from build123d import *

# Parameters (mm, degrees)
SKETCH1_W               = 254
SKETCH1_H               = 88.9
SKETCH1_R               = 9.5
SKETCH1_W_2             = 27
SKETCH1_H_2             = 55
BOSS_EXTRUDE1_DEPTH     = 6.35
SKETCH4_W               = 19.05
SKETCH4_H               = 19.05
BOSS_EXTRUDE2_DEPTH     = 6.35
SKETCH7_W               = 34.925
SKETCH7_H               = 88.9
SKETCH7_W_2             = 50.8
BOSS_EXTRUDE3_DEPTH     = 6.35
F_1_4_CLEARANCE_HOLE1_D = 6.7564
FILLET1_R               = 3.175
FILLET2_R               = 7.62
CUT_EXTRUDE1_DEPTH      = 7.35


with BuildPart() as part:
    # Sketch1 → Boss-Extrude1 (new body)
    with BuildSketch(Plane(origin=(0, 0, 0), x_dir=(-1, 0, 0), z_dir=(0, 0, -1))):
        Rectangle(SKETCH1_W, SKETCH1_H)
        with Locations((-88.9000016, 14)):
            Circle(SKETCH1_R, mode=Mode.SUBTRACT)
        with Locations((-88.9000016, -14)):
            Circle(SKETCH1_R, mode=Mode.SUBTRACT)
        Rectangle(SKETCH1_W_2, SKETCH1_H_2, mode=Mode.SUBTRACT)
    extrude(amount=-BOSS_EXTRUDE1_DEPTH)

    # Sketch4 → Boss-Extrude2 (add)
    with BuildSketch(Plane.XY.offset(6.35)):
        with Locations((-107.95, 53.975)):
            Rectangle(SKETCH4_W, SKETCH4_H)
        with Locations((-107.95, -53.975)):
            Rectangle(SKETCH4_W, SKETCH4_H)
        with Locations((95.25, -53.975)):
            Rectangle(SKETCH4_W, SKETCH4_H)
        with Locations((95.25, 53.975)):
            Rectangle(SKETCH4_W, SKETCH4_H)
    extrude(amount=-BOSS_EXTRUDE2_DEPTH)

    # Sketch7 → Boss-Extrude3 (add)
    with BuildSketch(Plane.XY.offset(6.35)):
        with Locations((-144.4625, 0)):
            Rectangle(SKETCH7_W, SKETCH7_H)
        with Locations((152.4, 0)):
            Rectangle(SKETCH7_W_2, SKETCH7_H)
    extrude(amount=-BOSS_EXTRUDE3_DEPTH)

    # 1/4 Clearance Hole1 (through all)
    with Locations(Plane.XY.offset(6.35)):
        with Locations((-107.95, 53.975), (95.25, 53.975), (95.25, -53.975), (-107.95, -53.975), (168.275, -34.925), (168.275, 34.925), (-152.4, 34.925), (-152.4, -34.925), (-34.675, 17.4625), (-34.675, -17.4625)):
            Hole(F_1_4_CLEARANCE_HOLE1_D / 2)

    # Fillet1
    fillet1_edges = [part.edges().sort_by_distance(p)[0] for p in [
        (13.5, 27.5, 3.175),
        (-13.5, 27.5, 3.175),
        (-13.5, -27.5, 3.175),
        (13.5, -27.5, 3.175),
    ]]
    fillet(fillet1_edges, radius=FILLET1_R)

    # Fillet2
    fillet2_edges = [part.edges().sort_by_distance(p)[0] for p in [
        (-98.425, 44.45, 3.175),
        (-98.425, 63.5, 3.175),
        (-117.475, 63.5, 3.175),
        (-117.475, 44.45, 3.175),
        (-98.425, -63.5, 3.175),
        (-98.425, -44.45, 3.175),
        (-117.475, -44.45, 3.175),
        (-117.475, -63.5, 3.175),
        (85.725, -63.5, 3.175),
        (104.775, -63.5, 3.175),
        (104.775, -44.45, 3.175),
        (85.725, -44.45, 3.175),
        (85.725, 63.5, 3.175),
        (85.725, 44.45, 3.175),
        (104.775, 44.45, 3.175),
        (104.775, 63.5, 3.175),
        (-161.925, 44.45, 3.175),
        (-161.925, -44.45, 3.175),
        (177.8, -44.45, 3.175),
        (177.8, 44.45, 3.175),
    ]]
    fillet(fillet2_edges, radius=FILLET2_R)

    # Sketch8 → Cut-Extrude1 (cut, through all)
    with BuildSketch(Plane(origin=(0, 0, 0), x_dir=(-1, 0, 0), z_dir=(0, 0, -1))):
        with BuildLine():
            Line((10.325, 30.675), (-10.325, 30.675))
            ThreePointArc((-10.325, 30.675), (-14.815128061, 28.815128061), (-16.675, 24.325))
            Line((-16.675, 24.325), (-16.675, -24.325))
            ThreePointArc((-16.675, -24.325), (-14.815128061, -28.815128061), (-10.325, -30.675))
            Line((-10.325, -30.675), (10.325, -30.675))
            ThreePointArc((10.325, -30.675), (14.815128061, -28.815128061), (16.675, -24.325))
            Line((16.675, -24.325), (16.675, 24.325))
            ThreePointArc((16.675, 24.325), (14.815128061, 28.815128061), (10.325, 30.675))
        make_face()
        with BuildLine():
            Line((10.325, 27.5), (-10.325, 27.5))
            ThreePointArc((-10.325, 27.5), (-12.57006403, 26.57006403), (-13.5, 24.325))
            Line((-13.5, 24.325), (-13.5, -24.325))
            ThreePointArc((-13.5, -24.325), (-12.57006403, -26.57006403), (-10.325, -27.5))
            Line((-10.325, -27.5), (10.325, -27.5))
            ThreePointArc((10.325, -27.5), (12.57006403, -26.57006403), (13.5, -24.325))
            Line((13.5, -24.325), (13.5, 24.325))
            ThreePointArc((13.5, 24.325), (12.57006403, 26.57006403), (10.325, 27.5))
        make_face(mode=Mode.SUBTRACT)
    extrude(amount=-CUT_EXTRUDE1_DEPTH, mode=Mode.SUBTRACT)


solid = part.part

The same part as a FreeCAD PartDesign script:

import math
import FreeCAD as App
import Part
import Sketcher
Q = App.Units.Quantity


def edges_at(feature, points):
    """Names of the edges that pass closest to the given points."""
    edges = feature.Shape.Edges
    near = lambda p: min(range(len(edges)), key=lambda i: edges[i].distToShape(Part.Vertex(*p))[0])
    return sorted({f"Edge{near(p) + 1}" for p in points})


def add_polygon(sketch, points):
    """Adds a closed chain of lines whose ends are joined by coincident constraints."""
    first, n = sketch.GeometryCount, len(points)
    for a, b in zip(points, points[1:] + points[:1]):
        sketch.addGeometry(Part.LineSegment(App.Vector(*a, 0), App.Vector(*b, 0)), False)
    for i in range(n):
        sketch.addConstraint(Sketcher.Constraint("Coincident", first + i, 2, first + (i + 1) % n, 1))

doc = App.newDocument("Part")
body = doc.addObject("PartDesign::Body", "Body")

sketch1 = body.newObject("Sketcher::SketchObject", "Sketch")
sketch1.AttachmentSupport = (doc.getObject("XY_Plane"), [""])
sketch1.MapMode = "FlatFace"
add_polygon(sketch1, [(127, 44), (127, -44), (-127, -44), (-127, 44)])
sketch1.addGeometry(Part.Circle(App.Vector(89, -14, 0), App.Vector(0, 0, 1), 10), False)
sketch1.addGeometry(Part.Circle(App.Vector(89, 14, 0), App.Vector(0, 0, 1), 10), False)
add_polygon(sketch1, [(-14, -28), (14, -28), (14, 28), (-14, 28)])
sketch1.addConstraint([
    Sketcher.Constraint("Vertical", 0),
    Sketcher.Constraint("Horizontal", 1),
    Sketcher.Constraint("Vertical", 2),
    Sketcher.Constraint("Horizontal", 3),
    Sketcher.Constraint("Horizontal", 6),
    Sketcher.Constraint("Vertical", 7),
    Sketcher.Constraint("Horizontal", 8),
    Sketcher.Constraint("Vertical", 9),
    Sketcher.Constraint("Equal", 4, 5),
    Sketcher.Constraint("Symmetric", 0, 2, 2, 2, -1, 1),
    Sketcher.Constraint("Symmetric", 6, 2, 8, 2, -1, 1),
    Sketcher.Constraint("Symmetric", 4, 3, 5, 3, -1),
    Sketcher.Constraint("DistanceX", 1, 2, 1, 1, Q("10 in")),
    Sketcher.Constraint("DistanceY", 0, 2, 0, 1, Q("3.5 in")),
    Sketcher.Constraint("DistanceX", -1, 1, 4, 3, Q("3.5000001 in")),
    Sketcher.Constraint("Diameter", 4, Q("19 mm")),
    Sketcher.Constraint("DistanceX", 6, 1, 6, 2, Q("27 mm")),
    Sketcher.Constraint("DistanceY", 7, 1, 7, 2, Q("55 mm")),
    Sketcher.Constraint("DistanceY", 4, 3, -1, 1, Q("14 mm")),
])
pad1 = body.newObject("PartDesign::Pad", "Pad")
pad1.Profile = sketch1
pad1.Length = Q("0.25 in")

sketch2 = body.newObject("Sketcher::SketchObject", "Sketch001")
sketch2.AttachmentSupport = (doc.getObject("XY_Plane"), [""])
sketch2.MapMode = "FlatFace"
sketch2.AttachmentOffset = App.Placement(App.Vector(0, 0, 0.25 * 25.4), App.Rotation())
add_polygon(sketch2, [(-117, 64), (-117, 44), (-98, 44), (-98, 64)])
add_polygon(sketch2, [(-117, -44), (-117, -64), (-98, -64), (-98, -44)])
add_polygon(sketch2, [(86, -44), (86, -64), (105, -64), (105, -44)])
add_polygon(sketch2, [(86, 64), (86, 44), (105, 44), (105, 64)])
sketch2.addConstraint([
    Sketcher.Constraint("Vertical", 0),
    Sketcher.Constraint("Horizontal", 1),
    Sketcher.Constraint("Vertical", 2),
    Sketcher.Constraint("Horizontal", 3),
    Sketcher.Constraint("Vertical", 4),
    Sketcher.Constraint("Horizontal", 5),
    Sketcher.Constraint("Vertical", 6),
    Sketcher.Constraint("Horizontal", 7),
    Sketcher.Constraint("Vertical", 8),
    Sketcher.Constraint("Horizontal", 9),
    Sketcher.Constraint("Vertical", 10),
    Sketcher.Constraint("Horizontal", 11),
    Sketcher.Constraint("Vertical", 12),
    Sketcher.Constraint("Horizontal", 13),
    Sketcher.Constraint("Vertical", 14),
    Sketcher.Constraint("Horizontal", 15),
    Sketcher.Constraint("Symmetric", 3, 2, 4, 2, -1),
    Sketcher.Constraint("Symmetric", 1, 2, 6, 2, -1),
    Sketcher.Constraint("Symmetric", 11, 2, 12, 2, -1),
    Sketcher.Constraint("Symmetric", 9, 2, 14, 2, -1),
    Sketcher.Constraint("Horizontal", 5, 2, 8, 2),
    Sketcher.Constraint("Horizontal", 7, 2, 10, 2),
    Sketcher.Constraint("Equal", 7, 9),
    Sketcher.Constraint("Equal", 15, 0),
    Sketcher.Constraint("DistanceY", 4, 2, 3, 2, Q("5 in")),
    Sketcher.Constraint("DistanceX", 4, 2, 8, 2, Q("8 in")),
    Sketcher.Constraint("DistanceX", 1, 1, 1, 2, Q("0.75 in")),
    Sketcher.Constraint("DistanceX", 0, 2, -1, 1, Q("4.625 in")),
])
pad2 = body.newObject("PartDesign::Pad", "Pad001")
pad2.Profile = sketch2
pad2.Length = Q("0.25 in")
pad2.Reversed = True

sketch3 = body.newObject("Sketcher::SketchObject", "Sketch002")
sketch3.AttachmentSupport = (doc.getObject("XY_Plane"), [""])
sketch3.MapMode = "FlatFace"
sketch3.AttachmentOffset = App.Placement(App.Vector(0, 0, 0.25 * 25.4), App.Rotation())
add_polygon(sketch3, [(-162, 44), (-162, -44), (-127, -44), (-127, 44)])
add_polygon(sketch3, [(127, 44), (127, -44), (178, -44), (178, 44)])
sketch3.addConstraint([
    Sketcher.Constraint("Vertical", 0),
    Sketcher.Constraint("Horizontal", 1),
    Sketcher.Constraint("Vertical", 2),
    Sketcher.Constraint("Horizontal", 3),
    Sketcher.Constraint("Vertical", 4),
    Sketcher.Constraint("Horizontal", 5),
    Sketcher.Constraint("Vertical", 6),
    Sketcher.Constraint("Horizontal", 7),
    Sketcher.Constraint("Symmetric", 2, 2, 4, 2, -1, 1),
    Sketcher.Constraint("Horizontal", 1, 2, 4, 2),
    Sketcher.Constraint("Horizontal", 3, 2, 6, 2),
    Sketcher.Constraint("DistanceX", 5, 1, 5, 2, Q("2 in")),
    Sketcher.Constraint("DistanceY", 0, 2, 0, 1, Q("3.5 in")),
    Sketcher.Constraint("DistanceX", 1, 2, -1, 1, Q("5 in")),
    Sketcher.Constraint("DistanceX", 1, 1, 1, 2, Q("1.375 in")),
])
pad3 = body.newObject("PartDesign::Pad", "Pad002")
pad3.Profile = sketch3
pad3.Length = Q("0.25 in")
pad3.Reversed = True

sketch4 = body.newObject("Sketcher::SketchObject", "Sketch003")
sketch4.AttachmentSupport = (doc.getObject("XY_Plane"), [""])
sketch4.MapMode = "FlatFace"
sketch4.AttachmentOffset = App.Placement(App.Vector(0, 0, 0.25 * 25.4), App.Rotation())
sketch4.addGeometry([
    Part.Circle(App.Vector(-108, 54, 0), App.Vector(0, 0, 1), 3.4),
    Part.Circle(App.Vector(95.2, 54, 0), App.Vector(0, 0, 1), 3.4),
    Part.Circle(App.Vector(95.2, -54, 0), App.Vector(0, 0, 1), 3.4),
    Part.Circle(App.Vector(-108, -54, 0), App.Vector(0, 0, 1), 3.4),
    Part.Circle(App.Vector(168.3, -34.9, 0), App.Vector(0, 0, 1), 3.4),
    Part.Circle(App.Vector(168.3, 34.9, 0), App.Vector(0, 0, 1), 3.4),
    Part.Circle(App.Vector(-152.4, 34.9, 0), App.Vector(0, 0, 1), 3.4),
    Part.Circle(App.Vector(-152.4, -34.9, 0), App.Vector(0, 0, 1), 3.4),
    Part.Circle(App.Vector(-34.7, 17.5, 0), App.Vector(0, 0, 1), 3.4),
    Part.Circle(App.Vector(-34.7, -17.5, 0), App.Vector(0, 0, 1), 3.4),
], False)
sketch4.addConstraint([
    Sketcher.Constraint("Equal", 0, 1),
    Sketcher.Constraint("Equal", 1, 2),
    Sketcher.Constraint("Equal", 2, 3),
    Sketcher.Constraint("Equal", 3, 4),
    Sketcher.Constraint("Equal", 4, 5),
    Sketcher.Constraint("Equal", 5, 6),
    Sketcher.Constraint("Equal", 6, 7),
    Sketcher.Constraint("Equal", 7, 8),
    Sketcher.Constraint("Equal", 8, 9),
    Sketcher.Constraint("Symmetric", 1, 3, 2, 3, -1),
    Sketcher.Constraint("Symmetric", 0, 3, 3, 3, -1),
    Sketcher.Constraint("Symmetric", 4, 3, 5, 3, -1),
    Sketcher.Constraint("Symmetric", 6, 3, 7, 3, -1),
    Sketcher.Constraint("Symmetric", 8, 3, 9, 3, -1),
    Sketcher.Constraint("Horizontal", 0, 3, 1, 3),
    Sketcher.Constraint("Horizontal", 5, 3, 6, 3),
    Sketcher.Constraint("Diameter", 0, Q("0.266 in")),
    Sketcher.Constraint("DistanceX", 6, 3, -1, 1, Q("6 in")),
    Sketcher.Constraint("DistanceX", 0, 3, 1, 3, Q("8 in")),
    Sketcher.Constraint("DistanceY", 4, 3, 1, 3, Q("3.5 in")),
    Sketcher.Constraint("DistanceX", 0, 3, -1, 1, Q("4.25 in")),
    Sketcher.Constraint("DistanceY", 2, 3, 1, 3, Q("4.25 in")),
    Sketcher.Constraint("DistanceX", -1, 1, 4, 3, Q("6.625 in")),
    Sketcher.Constraint("DistanceY", -1, 1, 8, 3, Q("0.6875 in")),
    Sketcher.Constraint("DistanceX", 8, 3, -1, 1, Q("34.675 mm")),
])
doc.recompute()
hole = body.newObject("PartDesign::Hole", "Hole")
hole.Profile = sketch4
hole.ThreadType = "None"
hole.Diameter = Q("0.266 in")
hole.DepthType = "ThroughAll"
doc.recompute()

fillet = body.newObject("PartDesign::Fillet", "Fillet")
fillet.Base = (hole, edges_at(hole, [
    (13.5, 27.5, 3.175),
    (-13.5, 27.5, 3.175),
    (-13.5, -27.5, 3.175),
    (13.5, -27.5, 3.175),
]))
fillet.Radius = Q("0.125 in")
doc.recompute()

fillet2 = body.newObject("PartDesign::Fillet", "Fillet001")
fillet2.Base = (fillet, edges_at(fillet, [
    (-98.425, 44.45, 3.175),
    (-98.425, 63.5, 3.175),
    (-117.475, 63.5, 3.175),
    (-117.475, 44.45, 3.175),
    (-98.425, -63.5, 3.175),
    (-98.425, -44.45, 3.175),
    (-117.475, -44.45, 3.175),
    (-117.475, -63.5, 3.175),
    (85.725, -63.5, 3.175),
    (104.775, -63.5, 3.175),
    (104.775, -44.45, 3.175),
    (85.725, -44.45, 3.175),
    (85.725, 63.5, 3.175),
    (85.725, 44.45, 3.175),
    (104.775, 44.45, 3.175),
    (104.775, 63.5, 3.175),
    (-161.925, 44.45, 3.175),
    (-161.925, -44.45, 3.175),
    (177.8, -44.45, 3.175),
    (177.8, 44.45, 3.175),
]))
fillet2.Radius = Q("0.3 in")

sketch5 = body.newObject("Sketcher::SketchObject", "Sketch004")
sketch5.AttachmentSupport = (doc.getObject("XY_Plane"), [""])
sketch5.MapMode = "FlatFace"
sketch5.addGeometry([
    Part.LineSegment(App.Vector(-10.3, 30.7, 0), App.Vector(10.3, 30.7, 0)),
    Part.ArcOfCircle(Part.Circle(App.Vector(10.3, 24.3, 0), App.Vector(0, 0, 1), 6.3), math.radians(0), math.radians(90)),
    Part.LineSegment(App.Vector(16.7, 24.3, 0), App.Vector(16.7, -24.3, 0)),
    Part.ArcOfCircle(Part.Circle(App.Vector(10.3, -24.3, 0), App.Vector(0, 0, 1), 6.3), math.radians(-90), math.radians(0)),
    Part.LineSegment(App.Vector(10.3, -30.7, 0), App.Vector(-10.3, -30.7, 0)),
    Part.ArcOfCircle(Part.Circle(App.Vector(-10.3, -24.3, 0), App.Vector(0, 0, 1), 6.3), math.radians(180), math.radians(270)),
    Part.LineSegment(App.Vector(-16.7, -24.3, 0), App.Vector(-16.7, 24.3, 0)),
    Part.ArcOfCircle(Part.Circle(App.Vector(-10.3, 24.3, 0), App.Vector(0, 0, 1), 6.3), math.radians(90), math.radians(180)),
    Part.LineSegment(App.Vector(10.3, 27.5, 0), App.Vector(-10.3, 27.5, 0)),
    Part.ArcOfCircle(Part.Circle(App.Vector(-10.3, 24.3, 0), App.Vector(0, 0, 1), 3.2), math.radians(90), math.radians(180)),
    Part.LineSegment(App.Vector(-13.5, 24.3, 0), App.Vector(-13.5, -24.3, 0)),
    Part.ArcOfCircle(Part.Circle(App.Vector(-10.3, -24.3, 0), App.Vector(0, 0, 1), 3.2), math.radians(-180), math.radians(-90)),
    Part.LineSegment(App.Vector(-10.3, -27.5, 0), App.Vector(10.3, -27.5, 0)),
    Part.ArcOfCircle(Part.Circle(App.Vector(10.3, -24.3, 0), App.Vector(0, 0, 1), 3.2), math.radians(-90), math.radians(0)),
    Part.LineSegment(App.Vector(13.5, -24.3, 0), App.Vector(13.5, 24.3, 0)),
    Part.ArcOfCircle(Part.Circle(App.Vector(10.3, 24.3, 0), App.Vector(0, 0, 1), 3.2), math.radians(0), math.radians(90)),
], False)
sketch5.addConstraint([
    Sketcher.Constraint("Tangent", 0, 2, 1, 2),
    Sketcher.Constraint("Tangent", 1, 1, 2, 1),
    Sketcher.Constraint("Tangent", 2, 2, 3, 2),
    Sketcher.Constraint("Tangent", 3, 1, 4, 1),
    Sketcher.Constraint("Tangent", 4, 2, 5, 2),
    Sketcher.Constraint("Tangent", 5, 1, 6, 1),
    Sketcher.Constraint("Tangent", 6, 2, 7, 2),
    Sketcher.Constraint("Tangent", 7, 1, 0, 1),
    Sketcher.Constraint("Tangent", 8, 2, 9, 1),
    Sketcher.Constraint("Tangent", 9, 2, 10, 1),
    Sketcher.Constraint("Tangent", 10, 2, 11, 1),
    Sketcher.Constraint("Tangent", 11, 2, 12, 1),
    Sketcher.Constraint("Tangent", 12, 2, 13, 1),
    Sketcher.Constraint("Tangent", 13, 2, 14, 1),
    Sketcher.Constraint("Tangent", 14, 2, 15, 1),
    Sketcher.Constraint("Tangent", 15, 2, 8, 1),
    Sketcher.Constraint("Horizontal", 0),
    Sketcher.Constraint("Vertical", 2),
    Sketcher.Constraint("Horizontal", 4),
    Sketcher.Constraint("Vertical", 6),
    Sketcher.Constraint("Horizontal", 8),
    Sketcher.Constraint("Vertical", 10),
    Sketcher.Constraint("Horizontal", 12),
    Sketcher.Constraint("Vertical", 14),
    Sketcher.Constraint("Coincident", 9, 3, 7, 3),
    Sketcher.Constraint("Coincident", 11, 3, 5, 3),
    Sketcher.Constraint("Coincident", 13, 3, 3, 3),
    Sketcher.Constraint("Equal", 1, 3),
    Sketcher.Constraint("Equal", 3, 5),
    Sketcher.Constraint("Equal", 5, 7),
    Sketcher.Constraint("Equal", 13, 15),
    Sketcher.Constraint("Symmetric", 1, 3, 5, 3, -1, 1),
    Sketcher.Constraint("Radius", 1, Q("0.25 in")),
    Sketcher.Constraint("Radius", 9, Q("0.125 in")),
    Sketcher.Constraint("DistanceX", 0, 1, 0, 2, Q("20.65 mm")),
    Sketcher.Constraint("DistanceY", 2, 2, 2, 1, Q("48.65 mm")),
])
pocket1 = body.newObject("PartDesign::Pocket", "Pocket")
pocket1.Profile = sketch5
pocket1.Type = "ThroughAll"
pocket1.Reversed = True

doc.recompute()
